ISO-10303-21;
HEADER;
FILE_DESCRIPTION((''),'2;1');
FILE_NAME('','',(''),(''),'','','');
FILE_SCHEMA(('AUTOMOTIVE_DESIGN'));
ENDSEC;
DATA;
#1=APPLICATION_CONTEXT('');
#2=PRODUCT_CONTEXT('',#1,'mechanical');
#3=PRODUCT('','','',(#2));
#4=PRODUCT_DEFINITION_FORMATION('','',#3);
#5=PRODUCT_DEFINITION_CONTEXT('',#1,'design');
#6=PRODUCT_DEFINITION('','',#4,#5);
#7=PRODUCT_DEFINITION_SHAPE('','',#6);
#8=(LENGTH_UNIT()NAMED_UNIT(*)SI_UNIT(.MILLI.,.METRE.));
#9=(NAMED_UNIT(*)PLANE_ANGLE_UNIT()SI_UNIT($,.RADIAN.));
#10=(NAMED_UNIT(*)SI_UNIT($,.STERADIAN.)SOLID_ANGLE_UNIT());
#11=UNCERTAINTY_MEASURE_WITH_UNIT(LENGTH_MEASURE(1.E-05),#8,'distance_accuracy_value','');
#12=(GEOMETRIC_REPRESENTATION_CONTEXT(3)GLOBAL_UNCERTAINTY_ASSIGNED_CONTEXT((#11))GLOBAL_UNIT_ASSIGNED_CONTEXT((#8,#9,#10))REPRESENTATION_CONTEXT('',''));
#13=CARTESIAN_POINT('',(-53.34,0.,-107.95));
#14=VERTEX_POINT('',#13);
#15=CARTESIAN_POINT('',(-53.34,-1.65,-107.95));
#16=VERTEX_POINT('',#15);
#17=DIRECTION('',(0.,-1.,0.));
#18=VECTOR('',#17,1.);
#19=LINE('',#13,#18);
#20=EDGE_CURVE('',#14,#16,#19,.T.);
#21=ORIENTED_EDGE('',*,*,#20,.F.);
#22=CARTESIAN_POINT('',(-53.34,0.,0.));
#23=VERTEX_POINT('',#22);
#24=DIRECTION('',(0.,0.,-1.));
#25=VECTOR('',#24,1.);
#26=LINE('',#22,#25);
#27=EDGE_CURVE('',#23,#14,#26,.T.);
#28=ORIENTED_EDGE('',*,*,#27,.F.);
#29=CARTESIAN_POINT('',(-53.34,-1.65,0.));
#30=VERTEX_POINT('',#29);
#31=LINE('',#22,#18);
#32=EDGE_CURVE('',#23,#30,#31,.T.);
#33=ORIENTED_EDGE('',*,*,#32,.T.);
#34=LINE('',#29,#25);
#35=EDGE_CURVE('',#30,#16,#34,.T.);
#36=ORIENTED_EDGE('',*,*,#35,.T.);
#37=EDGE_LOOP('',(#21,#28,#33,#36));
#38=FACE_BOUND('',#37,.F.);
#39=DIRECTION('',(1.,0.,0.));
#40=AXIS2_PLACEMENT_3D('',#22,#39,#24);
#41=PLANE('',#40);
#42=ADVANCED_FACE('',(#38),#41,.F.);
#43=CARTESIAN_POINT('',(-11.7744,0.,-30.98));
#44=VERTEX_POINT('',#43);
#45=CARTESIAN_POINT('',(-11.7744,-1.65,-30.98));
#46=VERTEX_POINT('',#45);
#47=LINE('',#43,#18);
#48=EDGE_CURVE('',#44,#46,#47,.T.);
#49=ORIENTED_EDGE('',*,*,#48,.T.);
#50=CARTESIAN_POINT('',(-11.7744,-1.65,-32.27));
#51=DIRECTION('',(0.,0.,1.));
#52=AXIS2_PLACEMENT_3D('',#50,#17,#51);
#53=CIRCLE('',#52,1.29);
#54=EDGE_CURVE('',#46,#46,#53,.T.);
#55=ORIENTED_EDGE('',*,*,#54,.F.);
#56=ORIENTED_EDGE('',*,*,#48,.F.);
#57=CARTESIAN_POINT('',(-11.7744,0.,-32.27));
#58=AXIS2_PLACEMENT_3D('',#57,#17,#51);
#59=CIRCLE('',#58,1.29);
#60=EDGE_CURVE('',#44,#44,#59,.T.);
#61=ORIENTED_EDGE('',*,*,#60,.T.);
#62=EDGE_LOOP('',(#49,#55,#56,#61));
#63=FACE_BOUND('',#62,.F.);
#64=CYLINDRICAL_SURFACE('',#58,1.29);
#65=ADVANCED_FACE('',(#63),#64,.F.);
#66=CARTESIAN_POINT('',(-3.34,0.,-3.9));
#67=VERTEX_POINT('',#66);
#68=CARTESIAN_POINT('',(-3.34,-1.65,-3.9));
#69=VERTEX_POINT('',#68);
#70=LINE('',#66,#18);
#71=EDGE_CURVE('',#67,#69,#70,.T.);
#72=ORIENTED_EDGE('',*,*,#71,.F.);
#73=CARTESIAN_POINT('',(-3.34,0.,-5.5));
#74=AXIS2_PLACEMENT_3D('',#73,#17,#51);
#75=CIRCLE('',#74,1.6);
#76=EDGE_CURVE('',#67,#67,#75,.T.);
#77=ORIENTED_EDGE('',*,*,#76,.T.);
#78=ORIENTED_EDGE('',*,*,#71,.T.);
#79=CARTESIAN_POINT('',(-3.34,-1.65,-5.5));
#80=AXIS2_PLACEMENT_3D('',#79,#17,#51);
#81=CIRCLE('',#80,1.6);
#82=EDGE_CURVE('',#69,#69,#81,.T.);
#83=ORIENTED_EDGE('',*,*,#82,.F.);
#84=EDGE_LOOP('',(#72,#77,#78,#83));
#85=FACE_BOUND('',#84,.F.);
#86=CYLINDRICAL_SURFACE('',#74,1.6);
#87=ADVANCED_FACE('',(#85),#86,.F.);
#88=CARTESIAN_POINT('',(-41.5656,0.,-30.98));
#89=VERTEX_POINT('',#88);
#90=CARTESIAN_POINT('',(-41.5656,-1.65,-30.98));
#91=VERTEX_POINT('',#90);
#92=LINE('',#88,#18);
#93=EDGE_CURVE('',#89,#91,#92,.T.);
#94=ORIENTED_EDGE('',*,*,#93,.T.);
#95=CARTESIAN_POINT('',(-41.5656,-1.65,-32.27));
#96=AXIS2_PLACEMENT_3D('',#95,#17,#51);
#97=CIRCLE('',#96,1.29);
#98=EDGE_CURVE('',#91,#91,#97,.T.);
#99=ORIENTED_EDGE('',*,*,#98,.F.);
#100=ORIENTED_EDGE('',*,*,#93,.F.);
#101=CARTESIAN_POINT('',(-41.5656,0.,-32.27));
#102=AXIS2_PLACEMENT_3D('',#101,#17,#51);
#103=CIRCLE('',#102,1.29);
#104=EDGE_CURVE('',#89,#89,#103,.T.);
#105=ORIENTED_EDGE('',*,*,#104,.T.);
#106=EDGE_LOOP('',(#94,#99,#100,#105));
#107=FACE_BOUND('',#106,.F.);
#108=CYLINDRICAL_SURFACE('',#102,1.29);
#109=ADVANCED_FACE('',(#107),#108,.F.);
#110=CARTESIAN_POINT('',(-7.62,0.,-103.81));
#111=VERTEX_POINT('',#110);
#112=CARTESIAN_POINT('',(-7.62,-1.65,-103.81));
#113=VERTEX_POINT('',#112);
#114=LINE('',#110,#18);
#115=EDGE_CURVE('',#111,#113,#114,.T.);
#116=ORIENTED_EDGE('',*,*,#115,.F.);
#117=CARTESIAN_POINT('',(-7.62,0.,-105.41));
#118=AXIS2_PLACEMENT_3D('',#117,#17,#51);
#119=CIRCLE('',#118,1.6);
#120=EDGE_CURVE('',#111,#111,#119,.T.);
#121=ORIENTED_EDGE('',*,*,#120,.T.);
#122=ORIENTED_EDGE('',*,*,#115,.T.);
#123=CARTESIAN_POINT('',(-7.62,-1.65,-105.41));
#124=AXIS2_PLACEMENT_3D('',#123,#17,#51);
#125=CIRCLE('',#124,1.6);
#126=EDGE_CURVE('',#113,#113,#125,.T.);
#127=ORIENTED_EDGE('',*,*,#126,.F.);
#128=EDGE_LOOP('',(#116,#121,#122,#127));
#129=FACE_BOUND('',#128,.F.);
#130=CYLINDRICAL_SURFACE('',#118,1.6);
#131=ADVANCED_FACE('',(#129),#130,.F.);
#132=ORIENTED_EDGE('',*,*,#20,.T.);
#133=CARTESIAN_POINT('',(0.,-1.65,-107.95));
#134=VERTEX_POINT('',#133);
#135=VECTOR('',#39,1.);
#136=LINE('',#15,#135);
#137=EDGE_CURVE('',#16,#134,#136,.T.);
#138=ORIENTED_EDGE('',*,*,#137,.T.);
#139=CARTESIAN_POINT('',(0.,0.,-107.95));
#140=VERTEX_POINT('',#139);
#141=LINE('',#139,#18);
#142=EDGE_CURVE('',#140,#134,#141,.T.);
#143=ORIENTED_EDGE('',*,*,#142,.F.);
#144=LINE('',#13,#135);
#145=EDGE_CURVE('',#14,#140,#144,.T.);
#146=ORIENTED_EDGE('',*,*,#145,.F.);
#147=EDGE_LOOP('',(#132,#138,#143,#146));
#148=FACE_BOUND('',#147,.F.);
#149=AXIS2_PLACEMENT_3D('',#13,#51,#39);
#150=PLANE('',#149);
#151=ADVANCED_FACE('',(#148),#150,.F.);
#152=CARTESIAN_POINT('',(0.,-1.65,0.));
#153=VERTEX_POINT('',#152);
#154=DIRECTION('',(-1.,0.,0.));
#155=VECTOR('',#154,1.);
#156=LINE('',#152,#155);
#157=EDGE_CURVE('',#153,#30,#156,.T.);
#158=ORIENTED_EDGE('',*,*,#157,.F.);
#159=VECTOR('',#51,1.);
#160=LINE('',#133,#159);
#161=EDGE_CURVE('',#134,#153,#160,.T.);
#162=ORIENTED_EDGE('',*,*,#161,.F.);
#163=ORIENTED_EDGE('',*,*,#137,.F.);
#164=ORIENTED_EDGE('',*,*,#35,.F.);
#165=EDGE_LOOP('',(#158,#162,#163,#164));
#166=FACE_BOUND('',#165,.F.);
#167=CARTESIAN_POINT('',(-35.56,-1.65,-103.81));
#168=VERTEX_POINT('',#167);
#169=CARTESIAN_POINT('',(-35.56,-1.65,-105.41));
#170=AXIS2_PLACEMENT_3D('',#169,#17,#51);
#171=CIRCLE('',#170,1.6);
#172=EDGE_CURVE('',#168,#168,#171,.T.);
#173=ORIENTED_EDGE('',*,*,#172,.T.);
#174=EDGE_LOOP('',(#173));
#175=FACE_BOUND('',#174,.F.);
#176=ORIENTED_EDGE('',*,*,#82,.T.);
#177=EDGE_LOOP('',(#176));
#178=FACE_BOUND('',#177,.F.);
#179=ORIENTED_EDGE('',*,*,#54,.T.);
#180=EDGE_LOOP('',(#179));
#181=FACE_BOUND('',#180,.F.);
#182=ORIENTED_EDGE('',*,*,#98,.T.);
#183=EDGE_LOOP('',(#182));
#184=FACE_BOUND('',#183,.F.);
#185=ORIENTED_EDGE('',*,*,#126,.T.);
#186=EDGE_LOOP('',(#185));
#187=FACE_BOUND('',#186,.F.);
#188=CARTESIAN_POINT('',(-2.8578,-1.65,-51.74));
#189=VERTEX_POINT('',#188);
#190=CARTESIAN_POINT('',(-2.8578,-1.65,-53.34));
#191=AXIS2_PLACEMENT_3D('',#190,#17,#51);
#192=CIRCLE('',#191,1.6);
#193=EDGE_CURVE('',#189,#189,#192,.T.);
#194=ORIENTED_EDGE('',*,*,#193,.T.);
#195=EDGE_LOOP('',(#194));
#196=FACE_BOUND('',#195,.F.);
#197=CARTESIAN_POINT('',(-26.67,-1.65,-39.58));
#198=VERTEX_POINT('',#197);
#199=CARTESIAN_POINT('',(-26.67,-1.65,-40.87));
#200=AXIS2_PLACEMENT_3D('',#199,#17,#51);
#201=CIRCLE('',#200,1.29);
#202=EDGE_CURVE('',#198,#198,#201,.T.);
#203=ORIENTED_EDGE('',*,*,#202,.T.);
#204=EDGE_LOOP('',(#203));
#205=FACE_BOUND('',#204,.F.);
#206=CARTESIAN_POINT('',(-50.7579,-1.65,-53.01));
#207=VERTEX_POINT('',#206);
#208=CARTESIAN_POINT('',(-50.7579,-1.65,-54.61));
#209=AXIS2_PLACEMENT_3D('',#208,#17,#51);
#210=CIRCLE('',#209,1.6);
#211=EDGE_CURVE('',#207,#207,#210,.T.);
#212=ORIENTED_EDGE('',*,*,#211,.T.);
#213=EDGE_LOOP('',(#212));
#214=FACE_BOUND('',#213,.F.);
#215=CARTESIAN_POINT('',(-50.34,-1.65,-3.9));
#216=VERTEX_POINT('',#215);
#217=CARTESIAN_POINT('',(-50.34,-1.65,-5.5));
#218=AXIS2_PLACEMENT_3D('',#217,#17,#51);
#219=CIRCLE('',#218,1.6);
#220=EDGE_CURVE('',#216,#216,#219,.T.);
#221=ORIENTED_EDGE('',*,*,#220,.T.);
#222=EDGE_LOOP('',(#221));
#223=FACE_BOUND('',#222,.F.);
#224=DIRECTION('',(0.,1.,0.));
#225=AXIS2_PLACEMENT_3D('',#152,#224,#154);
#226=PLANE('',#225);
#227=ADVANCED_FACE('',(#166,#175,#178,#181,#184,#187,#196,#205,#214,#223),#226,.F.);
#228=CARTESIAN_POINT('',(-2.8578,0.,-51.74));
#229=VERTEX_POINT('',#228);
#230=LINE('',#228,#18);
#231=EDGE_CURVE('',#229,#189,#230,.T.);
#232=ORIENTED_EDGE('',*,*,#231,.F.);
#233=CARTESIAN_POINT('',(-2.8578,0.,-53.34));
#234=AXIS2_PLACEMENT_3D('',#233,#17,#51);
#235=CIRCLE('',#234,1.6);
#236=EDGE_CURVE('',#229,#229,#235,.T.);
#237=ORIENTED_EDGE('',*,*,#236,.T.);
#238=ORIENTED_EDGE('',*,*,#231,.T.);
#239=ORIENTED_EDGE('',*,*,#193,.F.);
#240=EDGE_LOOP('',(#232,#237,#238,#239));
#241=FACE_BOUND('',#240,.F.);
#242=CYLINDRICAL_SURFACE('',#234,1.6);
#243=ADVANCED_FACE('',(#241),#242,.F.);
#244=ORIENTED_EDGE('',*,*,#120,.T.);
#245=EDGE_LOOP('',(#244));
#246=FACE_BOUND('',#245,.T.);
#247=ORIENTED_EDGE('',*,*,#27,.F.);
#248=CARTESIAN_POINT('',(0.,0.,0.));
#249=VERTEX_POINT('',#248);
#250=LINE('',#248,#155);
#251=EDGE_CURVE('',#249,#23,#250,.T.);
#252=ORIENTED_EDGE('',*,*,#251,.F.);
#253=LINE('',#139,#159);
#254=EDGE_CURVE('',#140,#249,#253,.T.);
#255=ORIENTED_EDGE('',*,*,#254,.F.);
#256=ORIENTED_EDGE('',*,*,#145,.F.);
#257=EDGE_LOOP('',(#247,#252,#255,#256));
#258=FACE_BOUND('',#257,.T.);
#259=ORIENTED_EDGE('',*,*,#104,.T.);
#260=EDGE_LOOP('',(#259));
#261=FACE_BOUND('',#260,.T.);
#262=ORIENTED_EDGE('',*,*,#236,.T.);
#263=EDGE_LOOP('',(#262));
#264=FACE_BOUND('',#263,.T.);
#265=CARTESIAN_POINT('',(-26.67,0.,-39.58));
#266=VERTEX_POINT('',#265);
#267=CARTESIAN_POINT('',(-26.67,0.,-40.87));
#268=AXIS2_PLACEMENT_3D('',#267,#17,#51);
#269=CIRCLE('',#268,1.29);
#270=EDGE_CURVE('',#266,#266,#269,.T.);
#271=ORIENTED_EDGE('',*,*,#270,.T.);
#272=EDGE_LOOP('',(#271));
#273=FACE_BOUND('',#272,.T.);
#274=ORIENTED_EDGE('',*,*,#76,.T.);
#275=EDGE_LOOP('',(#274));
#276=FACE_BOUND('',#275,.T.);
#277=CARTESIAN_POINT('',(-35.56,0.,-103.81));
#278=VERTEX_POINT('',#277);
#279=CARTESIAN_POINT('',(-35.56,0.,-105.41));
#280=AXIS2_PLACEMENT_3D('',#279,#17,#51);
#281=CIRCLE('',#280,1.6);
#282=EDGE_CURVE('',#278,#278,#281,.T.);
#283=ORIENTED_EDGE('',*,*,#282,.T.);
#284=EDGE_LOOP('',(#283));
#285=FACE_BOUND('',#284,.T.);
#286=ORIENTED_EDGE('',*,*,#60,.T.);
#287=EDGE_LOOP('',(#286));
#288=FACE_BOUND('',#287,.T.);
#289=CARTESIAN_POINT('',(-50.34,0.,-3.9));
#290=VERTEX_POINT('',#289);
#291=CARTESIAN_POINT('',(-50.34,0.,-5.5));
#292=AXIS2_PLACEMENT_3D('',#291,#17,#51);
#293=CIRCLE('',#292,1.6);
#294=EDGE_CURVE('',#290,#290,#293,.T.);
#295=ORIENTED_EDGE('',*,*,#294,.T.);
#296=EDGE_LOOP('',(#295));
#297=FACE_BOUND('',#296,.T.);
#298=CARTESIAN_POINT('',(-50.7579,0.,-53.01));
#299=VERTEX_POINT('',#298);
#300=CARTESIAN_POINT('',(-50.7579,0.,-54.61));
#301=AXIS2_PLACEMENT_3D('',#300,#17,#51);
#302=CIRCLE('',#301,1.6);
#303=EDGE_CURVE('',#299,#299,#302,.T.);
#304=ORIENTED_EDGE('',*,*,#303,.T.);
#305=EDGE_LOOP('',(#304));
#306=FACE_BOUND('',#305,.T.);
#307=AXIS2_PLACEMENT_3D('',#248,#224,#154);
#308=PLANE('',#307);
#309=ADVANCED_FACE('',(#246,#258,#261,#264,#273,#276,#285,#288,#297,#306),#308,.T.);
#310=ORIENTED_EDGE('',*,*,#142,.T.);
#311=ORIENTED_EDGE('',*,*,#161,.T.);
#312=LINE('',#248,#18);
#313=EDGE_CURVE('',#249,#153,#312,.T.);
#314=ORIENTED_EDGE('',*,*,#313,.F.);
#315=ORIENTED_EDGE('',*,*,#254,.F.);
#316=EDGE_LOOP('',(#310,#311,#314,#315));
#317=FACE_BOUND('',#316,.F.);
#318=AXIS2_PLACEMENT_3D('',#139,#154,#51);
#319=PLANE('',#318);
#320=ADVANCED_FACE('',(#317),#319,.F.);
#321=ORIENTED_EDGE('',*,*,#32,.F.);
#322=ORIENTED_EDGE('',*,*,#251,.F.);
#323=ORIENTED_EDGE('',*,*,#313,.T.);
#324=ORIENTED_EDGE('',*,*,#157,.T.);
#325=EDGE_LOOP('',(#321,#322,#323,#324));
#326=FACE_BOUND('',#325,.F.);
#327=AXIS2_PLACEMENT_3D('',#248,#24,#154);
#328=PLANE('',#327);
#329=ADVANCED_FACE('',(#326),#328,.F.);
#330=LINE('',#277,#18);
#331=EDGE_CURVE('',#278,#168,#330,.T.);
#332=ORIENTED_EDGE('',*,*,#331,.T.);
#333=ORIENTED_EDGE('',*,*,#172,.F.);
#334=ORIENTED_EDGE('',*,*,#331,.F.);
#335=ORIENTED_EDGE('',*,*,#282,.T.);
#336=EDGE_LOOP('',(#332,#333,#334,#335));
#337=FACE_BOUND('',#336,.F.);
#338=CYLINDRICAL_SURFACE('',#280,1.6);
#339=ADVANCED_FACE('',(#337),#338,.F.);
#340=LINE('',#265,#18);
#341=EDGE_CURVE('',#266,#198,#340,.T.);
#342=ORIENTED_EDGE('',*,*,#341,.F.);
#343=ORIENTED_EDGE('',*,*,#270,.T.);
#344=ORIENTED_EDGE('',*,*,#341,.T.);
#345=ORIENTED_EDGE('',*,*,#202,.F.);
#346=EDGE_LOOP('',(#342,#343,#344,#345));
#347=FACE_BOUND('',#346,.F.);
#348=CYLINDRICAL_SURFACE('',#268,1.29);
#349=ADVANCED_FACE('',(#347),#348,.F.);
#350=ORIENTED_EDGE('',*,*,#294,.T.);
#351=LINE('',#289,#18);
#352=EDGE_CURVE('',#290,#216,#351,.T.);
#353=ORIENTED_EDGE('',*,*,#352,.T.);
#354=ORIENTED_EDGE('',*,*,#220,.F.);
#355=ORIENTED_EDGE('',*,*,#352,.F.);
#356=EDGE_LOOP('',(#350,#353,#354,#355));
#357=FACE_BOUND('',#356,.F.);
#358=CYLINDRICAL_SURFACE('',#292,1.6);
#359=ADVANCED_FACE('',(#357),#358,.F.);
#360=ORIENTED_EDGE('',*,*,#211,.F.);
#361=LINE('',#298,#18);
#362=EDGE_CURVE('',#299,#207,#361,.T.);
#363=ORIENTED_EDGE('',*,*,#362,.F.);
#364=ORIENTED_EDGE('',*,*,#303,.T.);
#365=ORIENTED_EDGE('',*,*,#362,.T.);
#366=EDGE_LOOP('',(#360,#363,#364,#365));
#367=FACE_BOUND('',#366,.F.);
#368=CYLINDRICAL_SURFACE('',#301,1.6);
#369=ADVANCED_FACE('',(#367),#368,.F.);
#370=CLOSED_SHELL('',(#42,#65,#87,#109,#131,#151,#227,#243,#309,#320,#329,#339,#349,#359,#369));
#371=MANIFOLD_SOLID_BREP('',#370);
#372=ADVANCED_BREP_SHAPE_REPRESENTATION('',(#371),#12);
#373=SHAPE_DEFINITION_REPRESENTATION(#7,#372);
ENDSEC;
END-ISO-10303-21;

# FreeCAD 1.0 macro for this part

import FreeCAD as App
import Part
import Sketcher
from FreeCAD import Vector
Q = App.Units.Quantity


def add_polygon(sketch, points):
    """Adds a closed chain of lines whose ends are joined by coincident constraints."""
    first, n = sketch.GeometryCount, len(points)
    for a, b in zip(points, points[1:] + points[:1]):
        sketch.addGeometry(Part.LineSegment(App.Vector(*a, 0), App.Vector(*b, 0)), False)
    for i in range(n):
        sketch.addConstraint(Sketcher.Constraint("Coincident", first + i, 2, first + (i + 1) % n, 1))

doc = App.newDocument("Part")
body = doc.addObject("PartDesign::Body", "Body")

sketch1 = body.newObject("Sketcher::SketchObject", "Sketch")
sketch1.AttachmentSupport = (doc.getObject("XZ_Plane"), [""])
sketch1.MapMode = "FlatFace"
add_polygon(sketch1, [(-53, 0), (0, 0), (0, -108), (-53, -108)])
sketch1.addConstraint([
    Sketcher.Constraint("Horizontal", 0),
    Sketcher.Constraint("Vertical", 1),
    Sketcher.Constraint("Horizontal", 2),
    Sketcher.Constraint("Vertical", 3),
    Sketcher.Constraint("Coincident", 0, 2, -1, 1),
    Sketcher.Constraint("DistanceX", 0, 1, 0, 2, Q("2.1 in")),
    Sketcher.Constraint("DistanceY", 1, 2, 1, 1, Q("4.25 in")),
])
pad1 = body.newObject("PartDesign::Pad", "Pad")
pad1.Profile = sketch1
pad1.Length = 1.65

sketch2 = body.newObject("Sketcher::SketchObject", "Sketch001")
sketch2.AttachmentSupport = (doc.getObject("XZ_Plane"), [""])
sketch2.MapMode = "FlatFace"
sketch2.addGeometry([
    Part.Circle(Vector(-50.3, -5.5, 0), Vector(0, 0, 1), 1.6),
    Part.Circle(Vector(-3.3, -5.5, 0), Vector(0, 0, 1), 1.6),
    Part.Circle(Vector(-50.8, -54.6, 0), Vector(0, 0, 1), 1.6),
    Part.Circle(Vector(-2.9, -53.3, 0), Vector(0, 0, 1), 1.6),
    Part.Circle(Vector(-35.6, -105.4, 0), Vector(0, 0, 1), 1.6),
    Part.Circle(Vector(-7.6, -105.4, 0), Vector(0, 0, 1), 1.6),
], False)
sketch2.addConstraint([
    Sketcher.Constraint("Equal", 0, 1),
    Sketcher.Constraint("Equal", 1, 2),
    Sketcher.Constraint("Equal", 2, 3),
    Sketcher.Constraint("Equal", 3, 4),
    Sketcher.Constraint("Equal", 4, 5),
    Sketcher.Constraint("Horizontal", 0, 3, 1, 3),
    Sketcher.Constraint("Horizontal", 4, 3, 5, 3),
    Sketcher.Constraint("DistanceY", 4, 3, 2, 3, Q("2 in")),
    Sketcher.Constraint("DistanceY", 3, 3, -1, 1, Q("2.1 in")),
    Sketcher.Constraint("DistanceX", 4, 3, -1, 1, Q("1.4 in")),
    Sketcher.Constraint("DistanceX", 5, 3, -1, 1, Q("0.3 in")),
    Sketcher.Constraint("Diameter", 0, Q("3.2 mm")),
    Sketcher.Constraint("DistanceY", 2, 3, -1, 1, Q("2.15 in")),
    Sketcher.Constraint("DistanceX", 0, 3, -1, 1, Q("1.9819 in")),
    Sketcher.Constraint("DistanceX", 1, 3, -1, 1, Q("0.1315 in")),
    Sketcher.Constraint("DistanceX", 3, 3, -1, 1, Q("0.1125 in")),
    Sketcher.Constraint("DistanceY", 0, 3, -1, 1, Q("5.5 mm")),
    Sketcher.Constraint("DistanceX", 2, 3, -1, 1, Q("50.758 mm")),
])
doc.recompute()
hole = body.newObject("PartDesign::Hole", "Hole")
hole.Profile = sketch2
hole.ThreadType = "None"
hole.Diameter = 3.2
hole.DepthType = "ThroughAll"
hole.Reversed = True

sketch3 = body.newObject("Sketcher::SketchObject", "Sketch002")
sketch3.AttachmentSupport = (doc.getObject("XZ_Plane"), [""])
sketch3.MapMode = "FlatFace"
sketch3.addGeometry([
    Part.Circle(Vector(-26.7, -40.9, 0), Vector(0, 0, 1), 1.3),
    Part.Circle(Vector(-11.8, -32.3, 0), Vector(0, 0, 1), 1.3),
    Part.Circle(Vector(-41.6, -32.3, 0), Vector(0, 0, 1), 1.3),
], False)
sketch3.addConstraint([
    Sketcher.Constraint("Equal", 0, 1),
    Sketcher.Constraint("Equal", 1, 2),
    Sketcher.Constraint("Horizontal", 1, 3, 2, 3),
    Sketcher.Constraint("Diameter", 0, Q("2.58 mm")),
    Sketcher.Constraint("DistanceX", 0, 3, -1, 1, Q("1.05 in")),
    Sketcher.Constraint("DistanceY", 0, 3, -1, 1, Q("40.87 mm")),
    Sketcher.Constraint("DistanceX", 1, 3, -1, 1, Q("11.7744 mm")),
    Sketcher.Constraint("DistanceY", 1, 3, -1, 1, Q("32.27 mm")),
    Sketcher.Constraint("DistanceX", 2, 3, -1, 1, Q("41.5656 mm")),
])
doc.recompute()
hole2 = body.newObject("PartDesign::Hole", "Hole001")
hole2.Profile = sketch3
hole2.ThreadType = "None"
hole2.Diameter = 2.58
hole2.DepthType = "ThroughAll"
hole2.Reversed = True

doc.recompute()
